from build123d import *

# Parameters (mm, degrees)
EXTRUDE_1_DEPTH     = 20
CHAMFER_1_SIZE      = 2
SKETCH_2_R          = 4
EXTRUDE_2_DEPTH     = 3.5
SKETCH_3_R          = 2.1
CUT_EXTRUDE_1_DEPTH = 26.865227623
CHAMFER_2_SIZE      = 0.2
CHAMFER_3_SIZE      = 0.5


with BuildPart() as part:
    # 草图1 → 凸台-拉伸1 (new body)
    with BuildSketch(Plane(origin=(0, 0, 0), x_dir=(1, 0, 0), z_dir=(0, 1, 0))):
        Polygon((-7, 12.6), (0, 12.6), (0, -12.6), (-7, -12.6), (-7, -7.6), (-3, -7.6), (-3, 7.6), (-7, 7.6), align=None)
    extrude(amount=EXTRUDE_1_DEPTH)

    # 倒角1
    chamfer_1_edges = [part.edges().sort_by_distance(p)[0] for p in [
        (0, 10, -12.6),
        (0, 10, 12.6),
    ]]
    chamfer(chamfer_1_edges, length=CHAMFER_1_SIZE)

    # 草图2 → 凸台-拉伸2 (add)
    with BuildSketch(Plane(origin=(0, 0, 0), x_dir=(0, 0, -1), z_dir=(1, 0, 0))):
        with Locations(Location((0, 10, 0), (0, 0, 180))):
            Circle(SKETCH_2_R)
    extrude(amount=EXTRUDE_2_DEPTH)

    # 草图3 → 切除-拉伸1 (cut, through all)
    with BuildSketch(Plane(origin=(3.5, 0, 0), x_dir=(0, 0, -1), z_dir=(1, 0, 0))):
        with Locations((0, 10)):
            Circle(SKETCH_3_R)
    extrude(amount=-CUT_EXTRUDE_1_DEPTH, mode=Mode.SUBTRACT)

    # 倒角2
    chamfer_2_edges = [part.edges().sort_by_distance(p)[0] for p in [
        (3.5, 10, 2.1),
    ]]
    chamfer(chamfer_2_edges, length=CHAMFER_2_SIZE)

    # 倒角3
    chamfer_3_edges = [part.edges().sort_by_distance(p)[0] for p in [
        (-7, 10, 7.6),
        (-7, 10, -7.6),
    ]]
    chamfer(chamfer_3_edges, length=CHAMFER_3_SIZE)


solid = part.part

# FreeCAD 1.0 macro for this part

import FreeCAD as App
import Part
import Sketcher
Q = App.Units.Quantity


def edges_at(feature, points):
    """Names of the edges that pass closest to the given points."""
    edges = feature.Shape.Edges
    near = lambda p: min(range(len(edges)), key=lambda i: edges[i].distToShape(Part.Vertex(*p))[0])
    return sorted({f"Edge{near(p) + 1}" for p in points})


def add_polygon(sketch, points):
    """Adds a closed chain of lines whose ends are joined by coincident constraints."""
    first, n = sketch.GeometryCount, len(points)
    for a, b in zip(points, points[1:] + points[:1]):
        sketch.addGeometry(Part.LineSegment(App.Vector(*a, 0), App.Vector(*b, 0)), False)
    for i in range(n):
        sketch.addConstraint(Sketcher.Constraint("Coincident", first + i, 2, first + (i + 1) % n, 1))

doc = App.newDocument("Part")
params = doc.addObject("Spreadsheet::Sheet", "Params")
for row, (alias, value) in enumerate([
    ("sketch1_width", "7 mm"),
    ("sketch1_width2", "4 mm"),
    ("sketch1_height", "5 mm"),
    ("sketch1_height2", "15.2 mm"),
    ("pad1_length", "20 mm"),
    ("chamfer_size", "2 mm"),
    ("sketch2_diameter", "8 mm"),
    ("pad2_length", "3.5 mm"),
    ("sketch3_diameter", "4.2 mm"),
    ("chamfer2_size", "0.2 mm"),
    ("chamfer3_size", "0.5 mm"),
], start=1):
    params.set(f"A{row}", alias)
    params.set(f"B{row}", "=" + value)
    params.setAlias(f"B{row}", alias)

body = doc.addObject("PartDesign::Body", "Body")

# Sketch on XZ plane
sketch1 = body.newObject("Sketcher::SketchObject", "Sketch")
sketch1.AttachmentSupport = (doc.getObject("XZ_Plane"), [""])
sketch1.MapMode = "FlatFace"
add_polygon(sketch1, [(0, -12.6), (-7, -12.6), (-7, -7.6), (-3, -7.6), (-3, 7.6), (-7, 7.6), (-7, 12.6), (0, 12.6)])  # lines 0-7
sketch1.addConstraint([
    Sketcher.Constraint("Horizontal", 0),
    Sketcher.Constraint("Vertical", 1),
    Sketcher.Constraint("Horizontal", 2),
    Sketcher.Constraint("Vertical", 3),
    Sketcher.Constraint("Horizontal", 4),
    Sketcher.Constraint("Vertical", 5),
    Sketcher.Constraint("Horizontal", 6),
    Sketcher.Constraint("Vertical", 7),
    Sketcher.Constraint("Symmetric", 6, 2, 7, 2, -1, 1),
    Sketcher.Constraint("Symmetric", 1, 2, 4, 2, -1),
    Sketcher.Constraint("DistanceX", 0, 2, 0, 1, Q("7 mm")),
    Sketcher.Constraint("DistanceX", 2, 1, 2, 2, Q("4 mm")),
    Sketcher.Constraint("DistanceY", 1, 1, 1, 2, Q("5 mm")),
    Sketcher.Constraint("DistanceY", 3, 1, 3, 2, Q("15.2 mm")),
])
sketch1.setExpression("Constraints[18]", "Params.sketch1_width")
sketch1.setExpression("Constraints[19]", "Params.sketch1_width2")
sketch1.setExpression("Constraints[20]", "Params.sketch1_height")
sketch1.setExpression("Constraints[21]", "Params.sketch1_height2")
pad1 = body.newObject("PartDesign::Pad", "Pad")
pad1.Profile = sketch1
pad1.setExpression("Length", "Params.pad1_length")
pad1.Reversed = True
doc.recompute()

chamfer = body.newObject("PartDesign::Chamfer", "Chamfer")
chamfer.Base = (pad1, edges_at(pad1, [(0, 10, -12.6), (0, 10, 12.6)]))
chamfer.setExpression("Size", "Params.chamfer_size")

# Sketch on YZ plane
sketch2 = body.newObject("Sketcher::SketchObject", "Sketch001")
sketch2.AttachmentSupport = (doc.getObject("YZ_Plane"), [""])
sketch2.MapMode = "FlatFace"
sketch2.addGeometry(Part.Circle(App.Vector(10, 0, 0), App.Vector(0, 0, 1), 4), False)
sketch2.addConstraint([
    Sketcher.Constraint("PointOnObject", 0, 3, -1),
    Sketcher.Constraint("Diameter", 0, Q("8 mm")),
    Sketcher.Constraint("DistanceX", -1, 1, 0, 3, Q("10 mm")),
])
sketch2.setExpression("Constraints[1]", "Params.sketch2_diameter")
pad2 = body.newObject("PartDesign::Pad", "Pad001")
pad2.Profile = sketch2
pad2.setExpression("Length", "Params.pad2_length")

# Sketch on YZ plane
sketch3 = body.newObject("Sketcher::SketchObject", "Sketch002")
sketch3.AttachmentSupport = (doc.getObject("YZ_Plane"), [""])
sketch3.MapMode = "FlatFace"
sketch3.AttachmentOffset = App.Placement(App.Vector(0, 0, 3.5), App.Rotation())
sketch3.addGeometry(Part.Circle(App.Vector(10, 0, 0), App.Vector(0, 0, 1), 2.1), False)
sketch3.addConstraint([
    Sketcher.Constraint("PointOnObject", 0, 3, -1),
    Sketcher.Constraint("Diameter", 0, Q("4.2 mm")),
    Sketcher.Constraint("DistanceX", -1, 1, 0, 3, Q("10 mm")),
])
sketch3.setExpression("Constraints[1]", "Params.sketch3_diameter")
pocket1 = body.newObject("PartDesign::Pocket", "Pocket")
pocket1.Profile = sketch3
pocket1.Type = "ThroughAll"
doc.recompute()

chamfer2 = body.newObject("PartDesign::Chamfer", "Chamfer001")
chamfer2.Base = (pocket1, edges_at(pocket1, [(3.5, 10, 2.1)]))
chamfer2.setExpression("Size", "Params.chamfer2_size")
doc.recompute()

chamfer3 = body.newObject("PartDesign::Chamfer", "Chamfer002")
chamfer3.Base = (chamfer2, edges_at(chamfer2, [(-7, 10, 7.6), (-7, 10, -7.6)]))
chamfer3.setExpression("Size", "Params.chamfer3_size")

doc.recompute()
